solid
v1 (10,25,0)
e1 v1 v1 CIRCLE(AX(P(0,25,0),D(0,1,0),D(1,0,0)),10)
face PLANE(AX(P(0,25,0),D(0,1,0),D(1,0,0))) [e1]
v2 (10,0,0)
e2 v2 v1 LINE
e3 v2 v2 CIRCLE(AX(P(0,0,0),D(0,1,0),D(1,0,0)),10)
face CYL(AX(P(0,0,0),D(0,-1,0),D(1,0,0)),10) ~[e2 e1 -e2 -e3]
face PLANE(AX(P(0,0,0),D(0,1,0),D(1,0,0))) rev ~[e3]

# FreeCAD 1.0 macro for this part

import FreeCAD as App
import Part
import Sketcher
from FreeCAD import Vector
Q = App.Units.Quantity

doc = App.newDocument("Part")
body = doc.addObject("PartDesign::Body", "Body")

sketch1 = body.newObject("Sketcher::SketchObject", "Sketch")
sketch1.AttachmentSupport = (doc.getObject("XZ_Plane"), [""])
sketch1.MapMode = "FlatFace"
sketch1.addGeometry(Part.Circle(Vector(0, 0, 0), Vector(0, 0, 1), 10), False)
sketch1.addConstraint([
    Sketcher.Constraint("Coincident", 0, 3, -1, 1),
    Sketcher.Constraint("Diameter", 0, Q("20 mm")),
])
pad1 = body.newObject("PartDesign::Pad", "Pad")
pad1.Profile = sketch1
pad1.Length = 25
pad1.Reversed = True

doc.recompute()
